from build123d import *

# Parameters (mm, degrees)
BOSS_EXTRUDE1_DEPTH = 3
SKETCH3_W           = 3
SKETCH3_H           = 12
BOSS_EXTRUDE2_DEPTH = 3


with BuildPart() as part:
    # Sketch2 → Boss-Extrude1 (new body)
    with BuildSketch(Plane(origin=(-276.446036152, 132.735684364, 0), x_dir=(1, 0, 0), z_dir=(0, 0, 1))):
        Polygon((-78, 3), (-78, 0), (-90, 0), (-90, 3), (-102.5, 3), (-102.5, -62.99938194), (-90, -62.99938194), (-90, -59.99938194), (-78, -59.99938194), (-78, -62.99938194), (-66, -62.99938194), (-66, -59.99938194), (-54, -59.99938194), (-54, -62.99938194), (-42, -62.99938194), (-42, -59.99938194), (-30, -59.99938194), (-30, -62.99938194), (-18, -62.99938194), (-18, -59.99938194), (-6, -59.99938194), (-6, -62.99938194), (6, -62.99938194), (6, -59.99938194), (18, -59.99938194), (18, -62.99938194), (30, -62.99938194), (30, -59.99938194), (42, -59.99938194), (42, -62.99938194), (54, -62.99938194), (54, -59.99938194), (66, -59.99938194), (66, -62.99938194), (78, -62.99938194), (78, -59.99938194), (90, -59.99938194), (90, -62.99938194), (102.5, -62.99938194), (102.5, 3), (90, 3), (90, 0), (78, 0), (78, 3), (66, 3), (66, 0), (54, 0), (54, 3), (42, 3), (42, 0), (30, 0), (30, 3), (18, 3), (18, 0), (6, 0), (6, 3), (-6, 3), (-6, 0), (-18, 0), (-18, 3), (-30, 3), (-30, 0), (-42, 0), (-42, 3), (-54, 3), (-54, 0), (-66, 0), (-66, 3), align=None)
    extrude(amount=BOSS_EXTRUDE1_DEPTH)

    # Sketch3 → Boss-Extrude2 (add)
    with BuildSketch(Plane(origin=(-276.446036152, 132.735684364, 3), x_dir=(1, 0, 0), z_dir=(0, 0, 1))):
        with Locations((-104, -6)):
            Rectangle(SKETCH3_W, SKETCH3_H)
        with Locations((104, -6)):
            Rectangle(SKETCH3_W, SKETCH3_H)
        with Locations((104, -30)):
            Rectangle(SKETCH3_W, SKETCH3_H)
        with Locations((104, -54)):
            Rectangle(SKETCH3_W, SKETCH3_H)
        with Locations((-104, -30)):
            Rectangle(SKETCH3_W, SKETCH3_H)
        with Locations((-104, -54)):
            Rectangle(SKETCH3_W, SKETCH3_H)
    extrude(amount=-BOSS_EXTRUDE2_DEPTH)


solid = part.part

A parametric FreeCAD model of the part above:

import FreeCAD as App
import Part
import Sketcher
from FreeCAD import Vector
Q = App.Units.Quantity

doc = App.newDocument("Part")
params = doc.addObject("Spreadsheet::Sheet", "Params")
for row, (alias, value) in enumerate([
    ("sketch1_width", "12 mm"),
    ("sketch1_height", "3 mm"),
    ("sketch1_width2", "12.5 mm"),
    ("pad1_length", "3 mm"),
    ("sketch2_width", "3 mm"),
    ("sketch2_height", "12 mm"),
    ("pad2_length", "3 mm"),
], start=1):
    params.set(f"A{row}", alias)
    params.set(f"B{row}", "=" + value)
    params.setAlias(f"B{row}", alias)

body = doc.addObject("PartDesign::Body", "Body")

# Sketch on XY plane
sketch1 = body.newObject("Sketcher::SketchObject", "Sketch")
sketch1.AttachmentSupport = (doc.getObject("XY_Plane"), [""])
sketch1.MapMode = "FlatFace"
sketch1.addGeometry(Part.LineSegment(Vector(-354.4, 135.7, 0), Vector(-354.4, 132.7, 0)), False)
sketch1.addGeometry(Part.LineSegment(Vector(-354.4, 132.7, 0), Vector(-366.4, 132.7, 0)), False)
sketch1.addGeometry(Part.LineSegment(Vector(-366.4, 132.7, 0), Vector(-366.4, 135.7, 0)), False)
sketch1.addGeometry(Part.LineSegment(Vector(-366.4, 135.7, 0), Vector(-378.9, 135.7, 0)), False)
sketch1.addGeometry(Part.LineSegment(Vector(-378.9, 135.7, 0), Vector(-378.9, 69.7, 0)), False)
sketch1.addGeometry(Part.LineSegment(Vector(-378.9, 69.7, 0), Vector(-366.4, 69.7, 0)), False)
sketch1.addGeometry(Part.LineSegment(Vector(-366.4, 69.7, 0), Vector(-366.4, 72.7, 0)), False)
sketch1.addGeometry(Part.LineSegment(Vector(-366.4, 72.7, 0), Vector(-354.4, 72.7, 0)), False)
sketch1.addGeometry(Part.LineSegment(Vector(-354.4, 72.7, 0), Vector(-354.4, 69.7, 0)), False)
sketch1.addGeometry(Part.LineSegment(Vector(-354.4, 69.7, 0), Vector(-342.4, 69.7, 0)), False)
sketch1.addGeometry(Part.LineSegment(Vector(-342.4, 69.7, 0), Vector(-342.4, 72.7, 0)), False)
sketch1.addGeometry(Part.LineSegment(Vector(-342.4, 72.7, 0), Vector(-330.4, 72.7, 0)), False)
sketch1.addGeometry(Part.LineSegment(Vector(-330.4, 72.7, 0), Vector(-330.4, 69.7, 0)), False)
sketch1.addGeometry(Part.LineSegment(Vector(-330.4, 69.7, 0), Vector(-318.4, 69.7, 0)), False)
sketch1.addGeometry(Part.LineSegment(Vector(-318.4, 69.7, 0), Vector(-318.4, 72.7, 0)), False)
sketch1.addGeometry(Part.LineSegment(Vector(-318.4, 72.7, 0), Vector(-306.4, 72.7, 0)), False)
sketch1.addGeometry(Part.LineSegment(Vector(-306.4, 72.7, 0), Vector(-306.4, 69.7, 0)), False)
sketch1.addGeometry(Part.LineSegment(Vector(-306.4, 69.7, 0), Vector(-294.4, 69.7, 0)), False)
sketch1.addGeometry(Part.LineSegment(Vector(-294.4, 69.7, 0), Vector(-294.4, 72.7, 0)), False)
sketch1.addGeometry(Part.LineSegment(Vector(-294.4, 72.7, 0), Vector(-282.4, 72.7, 0)), False)
sketch1.addGeometry(Part.LineSegment(Vector(-282.4, 72.7, 0), Vector(-282.4, 69.7, 0)), False)
sketch1.addGeometry(Part.LineSegment(Vector(-282.4, 69.7, 0), Vector(-270.4, 69.7, 0)), False)
sketch1.addGeometry(Part.LineSegment(Vector(-270.4, 69.7, 0), Vector(-270.4, 72.7, 0)), False)
sketch1.addGeometry(Part.LineSegment(Vector(-270.4, 72.7, 0), Vector(-258.4, 72.7, 0)), False)
sketch1.addGeometry(Part.LineSegment(Vector(-258.4, 72.7, 0), Vector(-258.4, 69.7, 0)), False)
sketch1.addGeometry(Part.LineSegment(Vector(-258.4, 69.7, 0), Vector(-246.4, 69.7, 0)), False)
sketch1.addGeometry(Part.LineSegment(Vector(-246.4, 69.7, 0), Vector(-246.4, 72.7, 0)), False)
sketch1.addGeometry(Part.LineSegment(Vector(-246.4, 72.7, 0), Vector(-234.4, 72.7, 0)), False)
sketch1.addGeometry(Part.LineSegment(Vector(-234.4, 72.7, 0), Vector(-234.4, 69.7, 0)), False)
sketch1.addGeometry(Part.LineSegment(Vector(-234.4, 69.7, 0), Vector(-222.4, 69.7, 0)), False)
sketch1.addGeometry(Part.LineSegment(Vector(-222.4, 69.7, 0), Vector(-222.4, 72.7, 0)), False)
sketch1.addGeometry(Part.LineSegment(Vector(-222.4, 72.7, 0), Vector(-210.4, 72.7, 0)), False)
sketch1.addGeometry(Part.LineSegment(Vector(-210.4, 72.7, 0), Vector(-210.4, 69.7, 0)), False)
sketch1.addGeometry(Part.LineSegment(Vector(-210.4, 69.7, 0), Vector(-198.4, 69.7, 0)), False)
sketch1.addGeometry(Part.LineSegment(Vector(-198.4, 69.7, 0), Vector(-198.4, 72.7, 0)), False)
sketch1.addGeometry(Part.LineSegment(Vector(-198.4, 72.7, 0), Vector(-186.4, 72.7, 0)), False)
sketch1.addGeometry(Part.LineSegment(Vector(-186.4, 72.7, 0), Vector(-186.4, 69.7, 0)), False)
sketch1.addGeometry(Part.LineSegment(Vector(-186.4, 69.7, 0), Vector(-173.9, 69.7, 0)), False)
sketch1.addGeometry(Part.LineSegment(Vector(-173.9, 69.7, 0), Vector(-173.9, 135.7, 0)), False)
sketch1.addGeometry(Part.LineSegment(Vector(-173.9, 135.7, 0), Vector(-186.4, 135.7, 0)), False)
sketch1.addGeometry(Part.LineSegment(Vector(-186.4, 135.7, 0), Vector(-186.4, 132.7, 0)), False)
sketch1.addGeometry(Part.LineSegment(Vector(-186.4, 132.7, 0), Vector(-198.4, 132.7, 0)), False)
sketch1.addGeometry(Part.LineSegment(Vector(-198.4, 132.7, 0), Vector(-198.4, 135.7, 0)), False)
sketch1.addGeometry(Part.LineSegment(Vector(-198.4, 135.7, 0), Vector(-210.4, 135.7, 0)), False)
sketch1.addGeometry(Part.LineSegment(Vector(-210.4, 135.7, 0), Vector(-210.4, 132.7, 0)), False)
sketch1.addGeometry(Part.LineSegment(Vector(-210.4, 132.7, 0), Vector(-222.4, 132.7, 0)), False)
sketch1.addGeometry(Part.LineSegment(Vector(-222.4, 132.7, 0), Vector(-222.4, 135.7, 0)), False)
sketch1.addGeometry(Part.LineSegment(Vector(-222.4, 135.7, 0), Vector(-234.4, 135.7, 0)), False)
sketch1.addGeometry(Part.LineSegment(Vector(-234.4, 135.7, 0), Vector(-234.4, 132.7, 0)), False)
sketch1.addGeometry(Part.LineSegment(Vector(-234.4, 132.7, 0), Vector(-246.4, 132.7, 0)), False)
sketch1.addGeometry(Part.LineSegment(Vector(-246.4, 132.7, 0), Vector(-246.4, 135.7, 0)), False)
sketch1.addGeometry(Part.LineSegment(Vector(-246.4, 135.7, 0), Vector(-258.4, 135.7, 0)), False)
sketch1.addGeometry(Part.LineSegment(Vector(-258.4, 135.7, 0), Vector(-258.4, 132.7, 0)), False)
sketch1.addGeometry(Part.LineSegment(Vector(-258.4, 132.7, 0), Vector(-270.4, 132.7, 0)), False)
sketch1.addGeometry(Part.LineSegment(Vector(-270.4, 132.7, 0), Vector(-270.4, 135.7, 0)), False)
sketch1.addGeometry(Part.LineSegment(Vector(-270.4, 135.7, 0), Vector(-282.4, 135.7, 0)), False)
sketch1.addGeometry(Part.LineSegment(Vector(-282.4, 135.7, 0), Vector(-282.4, 132.7, 0)), False)
sketch1.addGeometry(Part.LineSegment(Vector(-282.4, 132.7, 0), Vector(-294.4, 132.7, 0)), False)
sketch1.addGeometry(Part.LineSegment(Vector(-294.4, 132.7, 0), Vector(-294.4, 135.7, 0)), False)
sketch1.addGeometry(Part.LineSegment(Vector(-294.4, 135.7, 0), Vector(-306.4, 135.7, 0)), False)
sketch1.addGeometry(Part.LineSegment(Vector(-306.4, 135.7, 0), Vector(-306.4, 132.7, 0)), False)
sketch1.addGeometry(Part.LineSegment(Vector(-306.4, 132.7, 0), Vector(-318.4, 132.7, 0)), False)
sketch1.addGeometry(Part.LineSegment(Vector(-318.4, 132.7, 0), Vector(-318.4, 135.7, 0)), False)
sketch1.addGeometry(Part.LineSegment(Vector(-318.4, 135.7, 0), Vector(-330.4, 135.7, 0)), False)
sketch1.addGeometry(Part.LineSegment(Vector(-330.4, 135.7, 0), Vector(-330.4, 132.7, 0)), False)
sketch1.addGeometry(Part.LineSegment(Vector(-330.4, 132.7, 0), Vector(-342.4, 132.7, 0)), False)
sketch1.addGeometry(Part.LineSegment(Vector(-342.4, 132.7, 0), Vector(-342.4, 135.7, 0)), False)
sketch1.addGeometry(Part.LineSegment(Vector(-342.4, 135.7, 0), Vector(-354.4, 135.7, 0)), False)
sketch1.addConstraint(Sketcher.Constraint("Coincident", 0, 2, 1, 1))
sketch1.addConstraint(Sketcher.Constraint("Coincident", 1, 2, 2, 1))
sketch1.addConstraint(Sketcher.Constraint("Coincident", 2, 2, 3, 1))
sketch1.addConstraint(Sketcher.Constraint("Coincident", 3, 2, 4, 1))
sketch1.addConstraint(Sketcher.Constraint("Coincident", 4, 2, 5, 1))
sketch1.addConstraint(Sketcher.Constraint("Coincident", 5, 2, 6, 1))
sketch1.addConstraint(Sketcher.Constraint("Coincident", 6, 2, 7, 1))
sketch1.addConstraint(Sketcher.Constraint("Coincident", 7, 2, 8, 1))
sketch1.addConstraint(Sketcher.Constraint("Coincident", 8, 2, 9, 1))
sketch1.addConstraint(Sketcher.Constraint("Coincident", 9, 2, 10, 1))
sketch1.addConstraint(Sketcher.Constraint("Coincident", 10, 2, 11, 1))
sketch1.addConstraint(Sketcher.Constraint("Coincident", 11, 2, 12, 1))
sketch1.addConstraint(Sketcher.Constraint("Coincident", 12, 2, 13, 1))
sketch1.addConstraint(Sketcher.Constraint("Coincident", 13, 2, 14, 1))
sketch1.addConstraint(Sketcher.Constraint("Coincident", 14, 2, 15, 1))
sketch1.addConstraint(Sketcher.Constraint("Coincident", 15, 2, 16, 1))
sketch1.addConstraint(Sketcher.Constraint("Coincident", 16, 2, 17, 1))
sketch1.addConstraint(Sketcher.Constraint("Coincident", 17, 2, 18, 1))
sketch1.addConstraint(Sketcher.Constraint("Coincident", 18, 2, 19, 1))
sketch1.addConstraint(Sketcher.Constraint("Coincident", 19, 2, 20, 1))
sketch1.addConstraint(Sketcher.Constraint("Coincident", 20, 2, 21, 1))
sketch1.addConstraint(Sketcher.Constraint("Coincident", 21, 2, 22, 1))
sketch1.addConstraint(Sketcher.Constraint("Coincident", 22, 2, 23, 1))
sketch1.addConstraint(Sketcher.Constraint("Coincident", 23, 2, 24, 1))
sketch1.addConstraint(Sketcher.Constraint("Coincident", 24, 2, 25, 1))
sketch1.addConstraint(Sketcher.Constraint("Coincident", 25, 2, 26, 1))
sketch1.addConstraint(Sketcher.Constraint("Coincident", 26, 2, 27, 1))
sketch1.addConstraint(Sketcher.Constraint("Coincident", 27, 2, 28, 1))
sketch1.addConstraint(Sketcher.Constraint("Coincident", 28, 2, 29, 1))
sketch1.addConstraint(Sketcher.Constraint("Coincident", 29, 2, 30, 1))
sketch1.addConstraint(Sketcher.Constraint("Coincident", 30, 2, 31, 1))
sketch1.addConstraint(Sketcher.Constraint("Coincident", 31, 2, 32, 1))
sketch1.addConstraint(Sketcher.Constraint("Coincident", 32, 2, 33, 1))
sketch1.addConstraint(Sketcher.Constraint("Coincident", 33, 2, 34, 1))
sketch1.addConstraint(Sketcher.Constraint("Coincident", 34, 2, 35, 1))
sketch1.addConstraint(Sketcher.Constraint("Coincident", 35, 2, 36, 1))
sketch1.addConstraint(Sketcher.Constraint("Coincident", 36, 2, 37, 1))
sketch1.addConstraint(Sketcher.Constraint("Coincident", 37, 2, 38, 1))
sketch1.addConstraint(Sketcher.Constraint("Coincident", 38, 2, 39, 1))
sketch1.addConstraint(Sketcher.Constraint("Coincident", 39, 2, 40, 1))
sketch1.addConstraint(Sketcher.Constraint("Coincident", 40, 2, 41, 1))
sketch1.addConstraint(Sketcher.Constraint("Coincident", 41, 2, 42, 1))
sketch1.addConstraint(Sketcher.Constraint("Coincident", 42, 2, 43, 1))
sketch1.addConstraint(Sketcher.Constraint("Coincident", 43, 2, 44, 1))
sketch1.addConstraint(Sketcher.Constraint("Coincident", 44, 2, 45, 1))
sketch1.addConstraint(Sketcher.Constraint("Coincident", 45, 2, 46, 1))
sketch1.addConstraint(Sketcher.Constraint("Coincident", 46, 2, 47, 1))
sketch1.addConstraint(Sketcher.Constraint("Coincident", 47, 2, 48, 1))
sketch1.addConstraint(Sketcher.Constraint("Coincident", 48, 2, 49, 1))
sketch1.addConstraint(Sketcher.Constraint("Coincident", 49, 2, 50, 1))
sketch1.addConstraint(Sketcher.Constraint("Coincident", 50, 2, 51, 1))
sketch1.addConstraint(Sketcher.Constraint("Coincident", 51, 2, 52, 1))
sketch1.addConstraint(Sketcher.Constraint("Coincident", 52, 2, 53, 1))
sketch1.addConstraint(Sketcher.Constraint("Coincident", 53, 2, 54, 1))
sketch1.addConstraint(Sketcher.Constraint("Coincident", 54, 2, 55, 1))
sketch1.addConstraint(Sketcher.Constraint("Coincident", 55, 2, 56, 1))
sketch1.addConstraint(Sketcher.Constraint("Coincident", 56, 2, 57, 1))
sketch1.addConstraint(Sketcher.Constraint("Coincident", 57, 2, 58, 1))
sketch1.addConstraint(Sketcher.Constraint("Coincident", 58, 2, 59, 1))
sketch1.addConstraint(Sketcher.Constraint("Coincident", 59, 2, 60, 1))
sketch1.addConstraint(Sketcher.Constraint("Coincident", 60, 2, 61, 1))
sketch1.addConstraint(Sketcher.Constraint("Coincident", 61, 2, 62, 1))
sketch1.addConstraint(Sketcher.Constraint("Coincident", 62, 2, 63, 1))
sketch1.addConstraint(Sketcher.Constraint("Coincident", 63, 2, 64, 1))
sketch1.addConstraint(Sketcher.Constraint("Coincident", 64, 2, 65, 1))
sketch1.addConstraint(Sketcher.Constraint("Coincident", 65, 2, 66, 1))
sketch1.addConstraint(Sketcher.Constraint("Coincident", 66, 2, 67, 1))
sketch1.addConstraint(Sketcher.Constraint("Coincident", 67, 2, 0, 1))
sketch1.addConstraint(Sketcher.Constraint("Vertical", 0))
sketch1.addConstraint(Sketcher.Constraint("Horizontal", 1))
sketch1.addConstraint(Sketcher.Constraint("Vertical", 2))
sketch1.addConstraint(Sketcher.Constraint("Horizontal", 3))
sketch1.addConstraint(Sketcher.Constraint("Vertical", 4))
sketch1.addConstraint(Sketcher.Constraint("Horizontal", 5))
sketch1.addConstraint(Sketcher.Constraint("Vertical", 6))
sketch1.addConstraint(Sketcher.Constraint("Horizontal", 7))
sketch1.addConstraint(Sketcher.Constraint("Vertical", 8))
sketch1.addConstraint(Sketcher.Constraint("Horizontal", 9))
sketch1.addConstraint(Sketcher.Constraint("Vertical", 10))
sketch1.addConstraint(Sketcher.Constraint("Horizontal", 11))
sketch1.addConstraint(Sketcher.Constraint("Vertical", 12))
sketch1.addConstraint(Sketcher.Constraint("Horizontal", 13))
sketch1.addConstraint(Sketcher.Constraint("Vertical", 14))
sketch1.addConstraint(Sketcher.Constraint("Horizontal", 15))
sketch1.addConstraint(Sketcher.Constraint("Vertical", 16))
sketch1.addConstraint(Sketcher.Constraint("Horizontal", 17))
sketch1.addConstraint(Sketcher.Constraint("Vertical", 18))
sketch1.addConstraint(Sketcher.Constraint("Horizontal", 19))
sketch1.addConstraint(Sketcher.Constraint("Vertical", 20))
sketch1.addConstraint(Sketcher.Constraint("Horizontal", 21))
sketch1.addConstraint(Sketcher.Constraint("Vertical", 22))
sketch1.addConstraint(Sketcher.Constraint("Horizontal", 23))
sketch1.addConstraint(Sketcher.Constraint("Vertical", 24))
sketch1.addConstraint(Sketcher.Constraint("Horizontal", 25))
sketch1.addConstraint(Sketcher.Constraint("Vertical", 26))
sketch1.addConstraint(Sketcher.Constraint("Horizontal", 27))
sketch1.addConstraint(Sketcher.Constraint("Vertical", 28))
sketch1.addConstraint(Sketcher.Constraint("Horizontal", 29))
sketch1.addConstraint(Sketcher.Constraint("Vertical", 30))
sketch1.addConstraint(Sketcher.Constraint("Horizontal", 31))
sketch1.addConstraint(Sketcher.Constraint("Vertical", 32))
sketch1.addConstraint(Sketcher.Constraint("Horizontal", 33))
sketch1.addConstraint(Sketcher.Constraint("Vertical", 34))
sketch1.addConstraint(Sketcher.Constraint("Horizontal", 35))
sketch1.addConstraint(Sketcher.Constraint("Vertical", 36))
sketch1.addConstraint(Sketcher.Constraint("Horizontal", 37))
sketch1.addConstraint(Sketcher.Constraint("Vertical", 38))
sketch1.addConstraint(Sketcher.Constraint("Horizontal", 39))
sketch1.addConstraint(Sketcher.Constraint("Vertical", 40))
sketch1.addConstraint(Sketcher.Constraint("Horizontal", 41))
sketch1.addConstraint(Sketcher.Constraint("Vertical", 42))
sketch1.addConstraint(Sketcher.Constraint("Horizontal", 43))
sketch1.addConstraint(Sketcher.Constraint("Vertical", 44))
sketch1.addConstraint(Sketcher.Constraint("Horizontal", 45))
sketch1.addConstraint(Sketcher.Constraint("Vertical", 46))
sketch1.addConstraint(Sketcher.Constraint("Horizontal", 47))
sketch1.addConstraint(Sketcher.Constraint("Vertical", 48))
sketch1.addConstraint(Sketcher.Constraint("Horizontal", 49))
sketch1.addConstraint(Sketcher.Constraint("Vertical", 50))
sketch1.addConstraint(Sketcher.Constraint("Horizontal", 51))
sketch1.addConstraint(Sketcher.Constraint("Vertical", 52))
sketch1.addConstraint(Sketcher.Constraint("Horizontal", 53))
sketch1.addConstraint(Sketcher.Constraint("Vertical", 54))
sketch1.addConstraint(Sketcher.Constraint("Horizontal", 55))
sketch1.addConstraint(Sketcher.Constraint("Vertical", 56))
sketch1.addConstraint(Sketcher.Constraint("Horizontal", 57))
sketch1.addConstraint(Sketcher.Constraint("Vertical", 58))
sketch1.addConstraint(Sketcher.Constraint("Horizontal", 59))
sketch1.addConstraint(Sketcher.Constraint("Vertical", 60))
sketch1.addConstraint(Sketcher.Constraint("Horizontal", 61))
sketch1.addConstraint(Sketcher.Constraint("Vertical", 62))
sketch1.addConstraint(Sketcher.Constraint("Horizontal", 63))
sketch1.addConstraint(Sketcher.Constraint("Vertical", 64))
sketch1.addConstraint(Sketcher.Constraint("Horizontal", 65))
sketch1.addConstraint(Sketcher.Constraint("Vertical", 66))
sketch1.addConstraint(Sketcher.Constraint("Horizontal", 67))
sketch1.addConstraint(Sketcher.Constraint("Horizontal", 5, 2, 8, 2))
sketch1.addConstraint(Sketcher.Constraint("Horizontal", 7, 2, 10, 2))
sketch1.addConstraint(Sketcher.Constraint("Horizontal", 9, 2, 12, 2))
sketch1.addConstraint(Sketcher.Constraint("Horizontal", 11, 2, 14, 2))
sketch1.addConstraint(Sketcher.Constraint("Horizontal", 13, 2, 16, 2))
sketch1.addConstraint(Sketcher.Constraint("Horizontal", 15, 2, 18, 2))
sketch1.addConstraint(Sketcher.Constraint("Horizontal", 17, 2, 20, 2))
sketch1.addConstraint(Sketcher.Constraint("Horizontal", 19, 2, 22, 2))
sketch1.addConstraint(Sketcher.Constraint("Horizontal", 21, 2, 24, 2))
sketch1.addConstraint(Sketcher.Constraint("Horizontal", 23, 2, 26, 2))
sketch1.addConstraint(Sketcher.Constraint("Horizontal", 25, 2, 28, 2))
sketch1.addConstraint(Sketcher.Constraint("Horizontal", 27, 2, 30, 2))
sketch1.addConstraint(Sketcher.Constraint("Horizontal", 29, 2, 32, 2))
sketch1.addConstraint(Sketcher.Constraint("Horizontal", 31, 2, 34, 2))
sketch1.addConstraint(Sketcher.Constraint("Horizontal", 33, 2, 36, 2))
sketch1.addConstraint(Sketcher.Constraint("Horizontal", 3, 2, 38, 2))
sketch1.addConstraint(Sketcher.Constraint("Horizontal", 1, 2, 40, 2))
sketch1.addConstraint(Sketcher.Constraint("Horizontal", 39, 2, 42, 2))
sketch1.addConstraint(Sketcher.Constraint("Horizontal", 41, 2, 44, 2))
sketch1.addConstraint(Sketcher.Constraint("Horizontal", 43, 2, 46, 2))
sketch1.addConstraint(Sketcher.Constraint("Horizontal", 45, 2, 48, 2))
sketch1.addConstraint(Sketcher.Constraint("Horizontal", 47, 2, 50, 2))
sketch1.addConstraint(Sketcher.Constraint("Horizontal", 49, 2, 52, 2))
sketch1.addConstraint(Sketcher.Constraint("Horizontal", 51, 2, 54, 2))
sketch1.addConstraint(Sketcher.Constraint("Horizontal", 53, 2, 56, 2))
sketch1.addConstraint(Sketcher.Constraint("Horizontal", 55, 2, 58, 2))
sketch1.addConstraint(Sketcher.Constraint("Horizontal", 57, 2, 60, 2))
sketch1.addConstraint(Sketcher.Constraint("Horizontal", 59, 2, 62, 2))
sketch1.addConstraint(Sketcher.Constraint("Horizontal", 61, 2, 64, 2))
sketch1.addConstraint(Sketcher.Constraint("Horizontal", 63, 2, 66, 2))
sketch1.addConstraint(Sketcher.Constraint("Vertical", 2, 2, 5, 2))
sketch1.addConstraint(Sketcher.Constraint("Vertical", 0, 2, 7, 2))
sketch1.addConstraint(Sketcher.Constraint("Vertical", 36, 2, 39, 2))
sketch1.addConstraint(Sketcher.Constraint("Vertical", 34, 2, 41, 2))
sketch1.addConstraint(Sketcher.Constraint("Vertical", 32, 2, 43, 2))
sketch1.addConstraint(Sketcher.Constraint("Vertical", 30, 2, 45, 2))
sketch1.addConstraint(Sketcher.Constraint("Vertical", 28, 2, 47, 2))
sketch1.addConstraint(Sketcher.Constraint("Vertical", 26, 2, 49, 2))
sketch1.addConstraint(Sketcher.Constraint("Vertical", 24, 2, 51, 2))
sketch1.addConstraint(Sketcher.Constraint("Vertical", 22, 2, 53, 2))
sketch1.addConstraint(Sketcher.Constraint("Vertical", 20, 2, 55, 2))
sketch1.addConstraint(Sketcher.Constraint("Vertical", 18, 2, 57, 2))
sketch1.addConstraint(Sketcher.Constraint("Vertical", 16, 2, 59, 2))
sketch1.addConstraint(Sketcher.Constraint("Vertical", 14, 2, 61, 2))
sketch1.addConstraint(Sketcher.Constraint("Vertical", 12, 2, 63, 2))
sketch1.addConstraint(Sketcher.Constraint("Vertical", 10, 2, 65, 2))
sketch1.addConstraint(Sketcher.Constraint("Equal", 7, 9))
sketch1.addConstraint(Sketcher.Constraint("Equal", 9, 11))
sketch1.addConstraint(Sketcher.Constraint("Equal", 11, 13))
sketch1.addConstraint(Sketcher.Constraint("Equal", 13, 15))
sketch1.addConstraint(Sketcher.Constraint("Equal", 15, 17))
sketch1.addConstraint(Sketcher.Constraint("Equal", 17, 19))
sketch1.addConstraint(Sketcher.Constraint("Equal", 19, 21))
sketch1.addConstraint(Sketcher.Constraint("Equal", 21, 23))
sketch1.addConstraint(Sketcher.Constraint("Equal", 23, 25))
sketch1.addConstraint(Sketcher.Constraint("Equal", 25, 27))
sketch1.addConstraint(Sketcher.Constraint("Equal", 27, 29))
sketch1.addConstraint(Sketcher.Constraint("Equal", 29, 31))
sketch1.addConstraint(Sketcher.Constraint("Equal", 31, 33))
sketch1.addConstraint(Sketcher.Constraint("Equal", 33, 35))
sketch1.addConstraint(Sketcher.Constraint("Equal", 5, 37))
sketch1.addConstraint(Sketcher.Constraint("Equal", 2, 6))
sketch1.addConstraint(Sketcher.Constraint("DistanceX", 1, 2, 1, 1, Q("12 mm")))
sketch1.addConstraint(Sketcher.Constraint("DistanceY", 0, 2, 0, 1, Q("3 mm")))
sketch1.addConstraint(Sketcher.Constraint("DistanceX", 3, 2, 3, 1, Q("12.5 mm")))
sketch1.addConstraint(Sketcher.Constraint("DistanceY", 4, 2, 4, 1, Q("65.999382 mm")))
sketch1.addConstraint(Sketcher.Constraint("DistanceX", 0, 2, -1, 1, Q("354.446036 mm")))
sketch1.addConstraint(Sketcher.Constraint("DistanceY", -1, 1, 0, 2, Q("132.735684 mm")))
sketch1.setExpression("Constraints[198]", "Params.sketch1_width")
sketch1.setExpression("Constraints[199]", "Params.sketch1_height")
sketch1.setExpression("Constraints[200]", "Params.sketch1_width2")
pad1 = body.newObject("PartDesign::Pad", "Pad")
pad1.Profile = sketch1
pad1.setExpression("Length", "Params.pad1_length")

# Sketch on XY plane
sketch2 = body.newObject("Sketcher::SketchObject", "Sketch001")
sketch2.AttachmentSupport = (doc.getObject("XY_Plane"), [""])
sketch2.MapMode = "FlatFace"
sketch2.AttachmentOffset = App.Placement(Vector(0, 0, 3), App.Rotation())
sketch2.addGeometry(Part.LineSegment(Vector(-381.9, 132.7, 0), Vector(-381.9, 120.7, 0)), False)
sketch2.addGeometry(Part.LineSegment(Vector(-381.9, 120.7, 0), Vector(-378.9, 120.7, 0)), False)
sketch2.addGeometry(Part.LineSegment(Vector(-378.9, 120.7, 0), Vector(-378.9, 132.7, 0)), False)
sketch2.addGeometry(Part.LineSegment(Vector(-378.9, 132.7, 0), Vector(-381.9, 132.7, 0)), False)
sketch2.addGeometry(Part.LineSegment(Vector(-173.9, 132.7, 0), Vector(-173.9, 120.7, 0)), False)
sketch2.addGeometry(Part.LineSegment(Vector(-173.9, 120.7, 0), Vector(-170.9, 120.7, 0)), False)
sketch2.addGeometry(Part.LineSegment(Vector(-170.9, 120.7, 0), Vector(-170.9, 132.7, 0)), False)
sketch2.addGeometry(Part.LineSegment(Vector(-170.9, 132.7, 0), Vector(-173.9, 132.7, 0)), False)
sketch2.addGeometry(Part.LineSegment(Vector(-173.9, 108.7, 0), Vector(-173.9, 96.7, 0)), False)
sketch2.addGeometry(Part.LineSegment(Vector(-173.9, 96.7, 0), Vector(-170.9, 96.7, 0)), False)
sketch2.addGeometry(Part.LineSegment(Vector(-170.9, 96.7, 0), Vector(-170.9, 108.7, 0)), False)
sketch2.addGeometry(Part.LineSegment(Vector(-170.9, 108.7, 0), Vector(-173.9, 108.7, 0)), False)
sketch2.addGeometry(Part.LineSegment(Vector(-173.9, 84.7, 0), Vector(-173.9, 72.7, 0)), False)
sketch2.addGeometry(Part.LineSegment(Vector(-173.9, 72.7, 0), Vector(-170.9, 72.7, 0)), False)
sketch2.addGeometry(Part.LineSegment(Vector(-170.9, 72.7, 0), Vector(-170.9, 84.7, 0)), False)
sketch2.addGeometry(Part.LineSegment(Vector(-170.9, 84.7, 0), Vector(-173.9, 84.7, 0)), False)
sketch2.addGeometry(Part.LineSegment(Vector(-381.9, 108.7, 0), Vector(-381.9, 96.7, 0)), False)
sketch2.addGeometry(Part.LineSegment(Vector(-381.9, 96.7, 0), Vector(-378.9, 96.7, 0)), False)
sketch2.addGeometry(Part.LineSegment(Vector(-378.9, 96.7, 0), Vector(-378.9, 108.7, 0)), False)
sketch2.addGeometry(Part.LineSegment(Vector(-378.9, 108.7, 0), Vector(-381.9, 108.7, 0)), False)
sketch2.addGeometry(Part.LineSegment(Vector(-381.9, 84.7, 0), Vector(-381.9, 72.7, 0)), False)
sketch2.addGeometry(Part.LineSegment(Vector(-381.9, 72.7, 0), Vector(-378.9, 72.7, 0)), False)
sketch2.addGeometry(Part.LineSegment(Vector(-378.9, 72.7, 0), Vector(-378.9, 84.7, 0)), False)
sketch2.addGeometry(Part.LineSegment(Vector(-378.9, 84.7, 0), Vector(-381.9, 84.7, 0)), False)
sketch2.addConstraint(Sketcher.Constraint("Coincident", 0, 2, 1, 1))
sketch2.addConstraint(Sketcher.Constraint("Coincident", 1, 2, 2, 1))
sketch2.addConstraint(Sketcher.Constraint("Coincident", 2, 2, 3, 1))
sketch2.addConstraint(Sketcher.Constraint("Coincident", 3, 2, 0, 1))
sketch2.addConstraint(Sketcher.Constraint("Coincident", 4, 2, 5, 1))
sketch2.addConstraint(Sketcher.Constraint("Coincident", 5, 2, 6, 1))
sketch2.addConstraint(Sketcher.Constraint("Coincident", 6, 2, 7, 1))
sketch2.addConstraint(Sketcher.Constraint("Coincident", 7, 2, 4, 1))
sketch2.addConstraint(Sketcher.Constraint("Coincident", 8, 2, 9, 1))
sketch2.addConstraint(Sketcher.Constraint("Coincident", 9, 2, 10, 1))
sketch2.addConstraint(Sketcher.Constraint("Coincident", 10, 2, 11, 1))
sketch2.addConstraint(Sketcher.Constraint("Coincident", 11, 2, 8, 1))
sketch2.addConstraint(Sketcher.Constraint("Coincident", 12, 2, 13, 1))
sketch2.addConstraint(Sketcher.Constraint("Coincident", 13, 2, 14, 1))
sketch2.addConstraint(Sketcher.Constraint("Coincident", 14, 2, 15, 1))
sketch2.addConstraint(Sketcher.Constraint("Coincident", 15, 2, 12, 1))
sketch2.addConstraint(Sketcher.Constraint("Coincident", 16, 2, 17, 1))
sketch2.addConstraint(Sketcher.Constraint("Coincident", 17, 2, 18, 1))
sketch2.addConstraint(Sketcher.Constraint("Coincident", 18, 2, 19, 1))
sketch2.addConstraint(Sketcher.Constraint("Coincident", 19, 2, 16, 1))
sketch2.addConstraint(Sketcher.Constraint("Coincident", 20, 2, 21, 1))
sketch2.addConstraint(Sketcher.Constraint("Coincident", 21, 2, 22, 1))
sketch2.addConstraint(Sketcher.Constraint("Coincident", 22, 2, 23, 1))
sketch2.addConstraint(Sketcher.Constraint("Coincident", 23, 2, 20, 1))
sketch2.addConstraint(Sketcher.Constraint("Vertical", 0))
sketch2.addConstraint(Sketcher.Constraint("Horizontal", 1))
sketch2.addConstraint(Sketcher.Constraint("Vertical", 2))
sketch2.addConstraint(Sketcher.Constraint("Horizontal", 3))
sketch2.addConstraint(Sketcher.Constraint("Vertical", 4))
sketch2.addConstraint(Sketcher.Constraint("Horizontal", 5))
sketch2.addConstraint(Sketcher.Constraint("Vertical", 6))
sketch2.addConstraint(Sketcher.Constraint("Horizontal", 7))
sketch2.addConstraint(Sketcher.Constraint("Vertical", 8))
sketch2.addConstraint(Sketcher.Constraint("Horizontal", 9))
sketch2.addConstraint(Sketcher.Constraint("Vertical", 10))
sketch2.addConstraint(Sketcher.Constraint("Horizontal", 11))
sketch2.addConstraint(Sketcher.Constraint("Vertical", 12))
sketch2.addConstraint(Sketcher.Constraint("Horizontal", 13))
sketch2.addConstraint(Sketcher.Constraint("Vertical", 14))
sketch2.addConstraint(Sketcher.Constraint("Horizontal", 15))
sketch2.addConstraint(Sketcher.Constraint("Vertical", 16))
sketch2.addConstraint(Sketcher.Constraint("Horizontal", 17))
sketch2.addConstraint(Sketcher.Constraint("Vertical", 18))
sketch2.addConstraint(Sketcher.Constraint("Horizontal", 19))
sketch2.addConstraint(Sketcher.Constraint("Vertical", 20))
sketch2.addConstraint(Sketcher.Constraint("Horizontal", 21))
sketch2.addConstraint(Sketcher.Constraint("Vertical", 22))
sketch2.addConstraint(Sketcher.Constraint("Horizontal", 23))
sketch2.addConstraint(Sketcher.Constraint("Horizontal", 1, 2, 4, 2))
sketch2.addConstraint(Sketcher.Constraint("Horizontal", 3, 2, 6, 2))
sketch2.addConstraint(Sketcher.Constraint("Horizontal", 9, 2, 16, 2))
sketch2.addConstraint(Sketcher.Constraint("Horizontal", 11, 2, 18, 2))
sketch2.addConstraint(Sketcher.Constraint("Horizontal", 13, 2, 20, 2))
sketch2.addConstraint(Sketcher.Constraint("Horizontal", 15, 2, 22, 2))
sketch2.addConstraint(Sketcher.Constraint("Vertical", 7, 2, 8, 2))
sketch2.addConstraint(Sketcher.Constraint("Vertical", 6, 2, 9, 2))
sketch2.addConstraint(Sketcher.Constraint("Vertical", 11, 2, 12, 2))
sketch2.addConstraint(Sketcher.Constraint("Vertical", 10, 2, 13, 2))
sketch2.addConstraint(Sketcher.Constraint("Vertical", 3, 2, 16, 2))
sketch2.addConstraint(Sketcher.Constraint("Vertical", 2, 2, 17, 2))
sketch2.addConstraint(Sketcher.Constraint("Vertical", 19, 2, 20, 2))
sketch2.addConstraint(Sketcher.Constraint("Vertical", 18, 2, 21, 2))
sketch2.addConstraint(Sketcher.Constraint("Equal", 3, 5))
sketch2.addConstraint(Sketcher.Constraint("Equal", 6, 8))
sketch2.addConstraint(Sketcher.Constraint("Equal", 10, 12))
sketch2.addConstraint(Sketcher.Constraint("DistanceX", 1, 1, 1, 2, Q("3 mm")))
sketch2.addConstraint(Sketcher.Constraint("DistanceY", 0, 2, 0, 1, Q("12 mm")))
sketch2.addConstraint(Sketcher.Constraint("DistanceX", 1, 2, 4, 2, Q("205 mm")))
sketch2.addConstraint(Sketcher.Constraint("DistanceY", 8, 2, 4, 2, Q("24 mm")))
sketch2.addConstraint(Sketcher.Constraint("DistanceY", 12, 2, 8, 2, Q("24 mm")))
sketch2.addConstraint(Sketcher.Constraint("DistanceX", 0, 2, -1, 1, Q("381.946036 mm")))
sketch2.addConstraint(Sketcher.Constraint("DistanceY", -1, 1, 0, 2, Q("120.735684 mm")))
sketch2.setExpression("Constraints[65]", "Params.sketch2_width")
sketch2.setExpression("Constraints[66]", "Params.sketch2_height")
pad2 = body.newObject("PartDesign::Pad", "Pad001")
pad2.Profile = sketch2
pad2.setExpression("Length", "Params.pad2_length")
pad2.Reversed = True

doc.recompute()
